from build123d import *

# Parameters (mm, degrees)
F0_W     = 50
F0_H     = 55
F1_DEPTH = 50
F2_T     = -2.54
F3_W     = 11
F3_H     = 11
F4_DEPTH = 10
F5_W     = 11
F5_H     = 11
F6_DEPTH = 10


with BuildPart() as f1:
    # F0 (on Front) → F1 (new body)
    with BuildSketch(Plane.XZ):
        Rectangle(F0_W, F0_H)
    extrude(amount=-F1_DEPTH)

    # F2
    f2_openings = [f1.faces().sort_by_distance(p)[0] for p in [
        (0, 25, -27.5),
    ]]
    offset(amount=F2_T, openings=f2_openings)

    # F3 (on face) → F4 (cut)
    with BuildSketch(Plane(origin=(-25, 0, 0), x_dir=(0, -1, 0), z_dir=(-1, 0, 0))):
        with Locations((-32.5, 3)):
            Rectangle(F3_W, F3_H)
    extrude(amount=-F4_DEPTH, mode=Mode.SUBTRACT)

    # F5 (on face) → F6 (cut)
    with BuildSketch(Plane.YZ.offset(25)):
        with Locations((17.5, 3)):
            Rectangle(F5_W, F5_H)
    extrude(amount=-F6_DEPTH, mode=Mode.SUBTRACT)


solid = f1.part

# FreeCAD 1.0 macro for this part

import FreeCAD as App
import Part
import Sketcher

V = App.Vector


def faces_at(feature, points):
    """Names of the faces that lie closest to the given points."""
    faces = feature.Shape.Faces
    near = lambda p: min(range(len(faces)), key=lambda i: faces[i].distToShape(Part.Vertex(*p))[0])
    return sorted({f"Face{near(p) + 1}" for p in points})

doc = App.newDocument("Part")
body = doc.addObject("PartDesign::Body", "Body")

sketch1 = body.newObject("Sketcher::SketchObject", "Sketch")
sketch1.AttachmentSupport = (doc.getObject("XZ_Plane"), [""])
sketch1.MapMode = "FlatFace"
sketch1.addGeometry([
    Part.LineSegment(V(-25, 28, 0), V(-25, -28, 0)),
    Part.LineSegment(V(-25, -28, 0), V(25, -28, 0)),
    Part.LineSegment(V(25, -28, 0), V(25, 28, 0)),
    Part.LineSegment(V(25, 28, 0), V(-25, 28, 0)),
], False)
sketch1.addConstraint([
    Sketcher.Constraint("Coincident", 0, 2, 1, 1),
    Sketcher.Constraint("Coincident", 1, 2, 2, 1),
    Sketcher.Constraint("Coincident", 2, 2, 3, 1),
    Sketcher.Constraint("Coincident", 3, 2, 0, 1),
    Sketcher.Constraint("Vertical", 0),
    Sketcher.Constraint("Horizontal", 1),
    Sketcher.Constraint("Vertical", 2),
    Sketcher.Constraint("Horizontal", 3),
    Sketcher.Constraint("Symmetric", 0, 2, 2, 2, -1, 1),
    Sketcher.Constraint("DistanceX", 1, 1, 1, 2, 50.0),
    Sketcher.Constraint("DistanceY", 0, 2, 0, 1, 55.0),
])
pad1 = body.newObject("PartDesign::Pad", "Pad")
pad1.Profile = sketch1
pad1.Length = 50
pad1.Reversed = True
doc.recompute()

thickness = body.newObject("PartDesign::Thickness", "Thickness")
thickness.Base = (pad1, faces_at(pad1, [(0, 25, -27.5)]))
thickness.Value = 2.54
thickness.Reversed = True
thickness.Join = "Arc"

sketch2 = body.newObject("Sketcher::SketchObject", "Sketch001")
sketch2.AttachmentSupport = (doc.getObject("YZ_Plane"), [""])
sketch2.MapMode = "FlatFace"
sketch2.AttachmentOffset = App.Placement(V(0, 0, -25), App.Rotation())
sketch2.addGeometry([
    Part.LineSegment(V(38, 8, 0), V(38, -2, 0)),
    Part.LineSegment(V(38, -2, 0), V(27, -2, 0)),
    Part.LineSegment(V(27, -2, 0), V(27, 8, 0)),
    Part.LineSegment(V(27, 8, 0), V(38, 8, 0)),
], False)
sketch2.addConstraint([
    Sketcher.Constraint("Coincident", 0, 2, 1, 1),
    Sketcher.Constraint("Coincident", 1, 2, 2, 1),
    Sketcher.Constraint("Coincident", 2, 2, 3, 1),
    Sketcher.Constraint("Coincident", 3, 2, 0, 1),
    Sketcher.Constraint("Vertical", 0),
    Sketcher.Constraint("Horizontal", 1),
    Sketcher.Constraint("Vertical", 2),
    Sketcher.Constraint("Horizontal", 3),
    Sketcher.Constraint("Equal", 3, 0),
    Sketcher.Constraint("DistanceX", 1, 2, 1, 1, 11.0),
    Sketcher.Constraint("DistanceX", -1, 1, 0, 2, 38.0),
    Sketcher.Constraint("DistanceY", 0, 2, -1, 1, 2.5),
])
pocket1 = body.newObject("PartDesign::Pocket", "Pocket")
pocket1.Profile = sketch2
pocket1.Length = 10
pocket1.Reversed = True

sketch3 = body.newObject("Sketcher::SketchObject", "Sketch002")
sketch3.AttachmentSupport = (doc.getObject("YZ_Plane"), [""])
sketch3.MapMode = "FlatFace"
sketch3.AttachmentOffset = App.Placement(V(0, 0, 25), App.Rotation())
sketch3.addGeometry([
    Part.LineSegment(V(12, 8, 0), V(12, -2, 0)),
    Part.LineSegment(V(12, -2, 0), V(23, -2, 0)),
    Part.LineSegment(V(23, -2, 0), V(23, 8, 0)),
    Part.LineSegment(V(23, 8, 0), V(12, 8, 0)),
], False)
sketch3.addConstraint([
    Sketcher.Constraint("Coincident", 0, 2, 1, 1),
    Sketcher.Constraint("Coincident", 1, 2, 2, 1),
    Sketcher.Constraint("Coincident", 2, 2, 3, 1),
    Sketcher.Constraint("Coincident", 3, 2, 0, 1),
    Sketcher.Constraint("Vertical", 0),
    Sketcher.Constraint("Horizontal", 1),
    Sketcher.Constraint("Vertical", 2),
    Sketcher.Constraint("Horizontal", 3),
    Sketcher.Constraint("Equal", 3, 0),
    Sketcher.Constraint("DistanceX", 1, 1, 1, 2, 11.0),
    Sketcher.Constraint("DistanceX", -1, 1, 0, 2, 12.0),
    Sketcher.Constraint("DistanceY", 0, 2, -1, 1, 2.5),
])
pocket2 = body.newObject("PartDesign::Pocket", "Pocket001")
pocket2.Profile = sketch3
pocket2.Length = 10

doc.recompute()
